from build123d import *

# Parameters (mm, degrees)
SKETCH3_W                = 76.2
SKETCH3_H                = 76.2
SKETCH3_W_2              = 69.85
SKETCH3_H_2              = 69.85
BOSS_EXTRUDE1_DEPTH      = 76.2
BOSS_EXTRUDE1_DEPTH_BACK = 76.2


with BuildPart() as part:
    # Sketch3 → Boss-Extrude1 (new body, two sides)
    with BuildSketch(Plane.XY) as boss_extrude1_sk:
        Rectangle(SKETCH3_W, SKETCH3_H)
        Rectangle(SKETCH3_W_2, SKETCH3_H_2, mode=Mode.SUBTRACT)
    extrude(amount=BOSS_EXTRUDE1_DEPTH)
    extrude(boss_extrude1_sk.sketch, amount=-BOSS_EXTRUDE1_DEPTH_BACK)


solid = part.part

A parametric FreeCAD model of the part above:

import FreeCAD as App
import Part
import Sketcher

V = App.Vector
Q = App.Units.Quantity

doc = App.newDocument("Part")
body = doc.addObject("PartDesign::Body", "Body")

# Sketch on XY plane
sketch1 = body.newObject("Sketcher::SketchObject", "Sketch")
sketch1.AttachmentSupport = (doc.getObject("XY_Plane"), [""])
sketch1.MapMode = "FlatFace"
sketch1.addGeometry([
    Part.LineSegment(V(-38, 38, 0), V(-38, -38, 0)),  # 0
    Part.LineSegment(V(-38, -38, 0), V(38, -38, 0)),  # 1
    Part.LineSegment(V(38, -38, 0), V(38, 38, 0)),  # 2
    Part.LineSegment(V(38, 38, 0), V(-38, 38, 0)),  # 3
    Part.LineSegment(V(35, -35, 0), V(-35, -35, 0)),  # 4
    Part.LineSegment(V(-35, -35, 0), V(-35, 35, 0)),  # 5
    Part.LineSegment(V(-35, 35, 0), V(35, 35, 0)),  # 6
    Part.LineSegment(V(35, 35, 0), V(35, -35, 0)),  # 7
], False)
sketch1.addConstraint([
    Sketcher.Constraint("Coincident", 0, 2, 1, 1),
    Sketcher.Constraint("Coincident", 1, 2, 2, 1),
    Sketcher.Constraint("Coincident", 2, 2, 3, 1),
    Sketcher.Constraint("Coincident", 3, 2, 0, 1),
    Sketcher.Constraint("Coincident", 4, 2, 5, 1),
    Sketcher.Constraint("Coincident", 5, 2, 6, 1),
    Sketcher.Constraint("Coincident", 6, 2, 7, 1),
    Sketcher.Constraint("Coincident", 7, 2, 4, 1),
    Sketcher.Constraint("Vertical", 0),
    Sketcher.Constraint("Horizontal", 1),
    Sketcher.Constraint("Vertical", 2),
    Sketcher.Constraint("Horizontal", 3),
    Sketcher.Constraint("Horizontal", 4),
    Sketcher.Constraint("Vertical", 5),
    Sketcher.Constraint("Horizontal", 6),
    Sketcher.Constraint("Vertical", 7),
    Sketcher.Constraint("Symmetric", 0, 2, 2, 2, -1, 1),
    Sketcher.Constraint("Symmetric", 4, 2, 6, 2, -1, 1),
    Sketcher.Constraint("Equal", 3, 0),
    Sketcher.Constraint("Equal", 6, 5),
    Sketcher.Constraint("DistanceX", 1, 1, 1, 2, Q("3 in")),
    Sketcher.Constraint("DistanceX", 4, 2, 4, 1, Q("2.75 in")),
])
pad1 = body.newObject("PartDesign::Pad", "Pad")
pad1.Profile = sketch1
pad1.Type = "TwoLengths"
pad1.Length = Q("3 in")
pad1.Length2 = Q("3 in")

doc.recompute()
